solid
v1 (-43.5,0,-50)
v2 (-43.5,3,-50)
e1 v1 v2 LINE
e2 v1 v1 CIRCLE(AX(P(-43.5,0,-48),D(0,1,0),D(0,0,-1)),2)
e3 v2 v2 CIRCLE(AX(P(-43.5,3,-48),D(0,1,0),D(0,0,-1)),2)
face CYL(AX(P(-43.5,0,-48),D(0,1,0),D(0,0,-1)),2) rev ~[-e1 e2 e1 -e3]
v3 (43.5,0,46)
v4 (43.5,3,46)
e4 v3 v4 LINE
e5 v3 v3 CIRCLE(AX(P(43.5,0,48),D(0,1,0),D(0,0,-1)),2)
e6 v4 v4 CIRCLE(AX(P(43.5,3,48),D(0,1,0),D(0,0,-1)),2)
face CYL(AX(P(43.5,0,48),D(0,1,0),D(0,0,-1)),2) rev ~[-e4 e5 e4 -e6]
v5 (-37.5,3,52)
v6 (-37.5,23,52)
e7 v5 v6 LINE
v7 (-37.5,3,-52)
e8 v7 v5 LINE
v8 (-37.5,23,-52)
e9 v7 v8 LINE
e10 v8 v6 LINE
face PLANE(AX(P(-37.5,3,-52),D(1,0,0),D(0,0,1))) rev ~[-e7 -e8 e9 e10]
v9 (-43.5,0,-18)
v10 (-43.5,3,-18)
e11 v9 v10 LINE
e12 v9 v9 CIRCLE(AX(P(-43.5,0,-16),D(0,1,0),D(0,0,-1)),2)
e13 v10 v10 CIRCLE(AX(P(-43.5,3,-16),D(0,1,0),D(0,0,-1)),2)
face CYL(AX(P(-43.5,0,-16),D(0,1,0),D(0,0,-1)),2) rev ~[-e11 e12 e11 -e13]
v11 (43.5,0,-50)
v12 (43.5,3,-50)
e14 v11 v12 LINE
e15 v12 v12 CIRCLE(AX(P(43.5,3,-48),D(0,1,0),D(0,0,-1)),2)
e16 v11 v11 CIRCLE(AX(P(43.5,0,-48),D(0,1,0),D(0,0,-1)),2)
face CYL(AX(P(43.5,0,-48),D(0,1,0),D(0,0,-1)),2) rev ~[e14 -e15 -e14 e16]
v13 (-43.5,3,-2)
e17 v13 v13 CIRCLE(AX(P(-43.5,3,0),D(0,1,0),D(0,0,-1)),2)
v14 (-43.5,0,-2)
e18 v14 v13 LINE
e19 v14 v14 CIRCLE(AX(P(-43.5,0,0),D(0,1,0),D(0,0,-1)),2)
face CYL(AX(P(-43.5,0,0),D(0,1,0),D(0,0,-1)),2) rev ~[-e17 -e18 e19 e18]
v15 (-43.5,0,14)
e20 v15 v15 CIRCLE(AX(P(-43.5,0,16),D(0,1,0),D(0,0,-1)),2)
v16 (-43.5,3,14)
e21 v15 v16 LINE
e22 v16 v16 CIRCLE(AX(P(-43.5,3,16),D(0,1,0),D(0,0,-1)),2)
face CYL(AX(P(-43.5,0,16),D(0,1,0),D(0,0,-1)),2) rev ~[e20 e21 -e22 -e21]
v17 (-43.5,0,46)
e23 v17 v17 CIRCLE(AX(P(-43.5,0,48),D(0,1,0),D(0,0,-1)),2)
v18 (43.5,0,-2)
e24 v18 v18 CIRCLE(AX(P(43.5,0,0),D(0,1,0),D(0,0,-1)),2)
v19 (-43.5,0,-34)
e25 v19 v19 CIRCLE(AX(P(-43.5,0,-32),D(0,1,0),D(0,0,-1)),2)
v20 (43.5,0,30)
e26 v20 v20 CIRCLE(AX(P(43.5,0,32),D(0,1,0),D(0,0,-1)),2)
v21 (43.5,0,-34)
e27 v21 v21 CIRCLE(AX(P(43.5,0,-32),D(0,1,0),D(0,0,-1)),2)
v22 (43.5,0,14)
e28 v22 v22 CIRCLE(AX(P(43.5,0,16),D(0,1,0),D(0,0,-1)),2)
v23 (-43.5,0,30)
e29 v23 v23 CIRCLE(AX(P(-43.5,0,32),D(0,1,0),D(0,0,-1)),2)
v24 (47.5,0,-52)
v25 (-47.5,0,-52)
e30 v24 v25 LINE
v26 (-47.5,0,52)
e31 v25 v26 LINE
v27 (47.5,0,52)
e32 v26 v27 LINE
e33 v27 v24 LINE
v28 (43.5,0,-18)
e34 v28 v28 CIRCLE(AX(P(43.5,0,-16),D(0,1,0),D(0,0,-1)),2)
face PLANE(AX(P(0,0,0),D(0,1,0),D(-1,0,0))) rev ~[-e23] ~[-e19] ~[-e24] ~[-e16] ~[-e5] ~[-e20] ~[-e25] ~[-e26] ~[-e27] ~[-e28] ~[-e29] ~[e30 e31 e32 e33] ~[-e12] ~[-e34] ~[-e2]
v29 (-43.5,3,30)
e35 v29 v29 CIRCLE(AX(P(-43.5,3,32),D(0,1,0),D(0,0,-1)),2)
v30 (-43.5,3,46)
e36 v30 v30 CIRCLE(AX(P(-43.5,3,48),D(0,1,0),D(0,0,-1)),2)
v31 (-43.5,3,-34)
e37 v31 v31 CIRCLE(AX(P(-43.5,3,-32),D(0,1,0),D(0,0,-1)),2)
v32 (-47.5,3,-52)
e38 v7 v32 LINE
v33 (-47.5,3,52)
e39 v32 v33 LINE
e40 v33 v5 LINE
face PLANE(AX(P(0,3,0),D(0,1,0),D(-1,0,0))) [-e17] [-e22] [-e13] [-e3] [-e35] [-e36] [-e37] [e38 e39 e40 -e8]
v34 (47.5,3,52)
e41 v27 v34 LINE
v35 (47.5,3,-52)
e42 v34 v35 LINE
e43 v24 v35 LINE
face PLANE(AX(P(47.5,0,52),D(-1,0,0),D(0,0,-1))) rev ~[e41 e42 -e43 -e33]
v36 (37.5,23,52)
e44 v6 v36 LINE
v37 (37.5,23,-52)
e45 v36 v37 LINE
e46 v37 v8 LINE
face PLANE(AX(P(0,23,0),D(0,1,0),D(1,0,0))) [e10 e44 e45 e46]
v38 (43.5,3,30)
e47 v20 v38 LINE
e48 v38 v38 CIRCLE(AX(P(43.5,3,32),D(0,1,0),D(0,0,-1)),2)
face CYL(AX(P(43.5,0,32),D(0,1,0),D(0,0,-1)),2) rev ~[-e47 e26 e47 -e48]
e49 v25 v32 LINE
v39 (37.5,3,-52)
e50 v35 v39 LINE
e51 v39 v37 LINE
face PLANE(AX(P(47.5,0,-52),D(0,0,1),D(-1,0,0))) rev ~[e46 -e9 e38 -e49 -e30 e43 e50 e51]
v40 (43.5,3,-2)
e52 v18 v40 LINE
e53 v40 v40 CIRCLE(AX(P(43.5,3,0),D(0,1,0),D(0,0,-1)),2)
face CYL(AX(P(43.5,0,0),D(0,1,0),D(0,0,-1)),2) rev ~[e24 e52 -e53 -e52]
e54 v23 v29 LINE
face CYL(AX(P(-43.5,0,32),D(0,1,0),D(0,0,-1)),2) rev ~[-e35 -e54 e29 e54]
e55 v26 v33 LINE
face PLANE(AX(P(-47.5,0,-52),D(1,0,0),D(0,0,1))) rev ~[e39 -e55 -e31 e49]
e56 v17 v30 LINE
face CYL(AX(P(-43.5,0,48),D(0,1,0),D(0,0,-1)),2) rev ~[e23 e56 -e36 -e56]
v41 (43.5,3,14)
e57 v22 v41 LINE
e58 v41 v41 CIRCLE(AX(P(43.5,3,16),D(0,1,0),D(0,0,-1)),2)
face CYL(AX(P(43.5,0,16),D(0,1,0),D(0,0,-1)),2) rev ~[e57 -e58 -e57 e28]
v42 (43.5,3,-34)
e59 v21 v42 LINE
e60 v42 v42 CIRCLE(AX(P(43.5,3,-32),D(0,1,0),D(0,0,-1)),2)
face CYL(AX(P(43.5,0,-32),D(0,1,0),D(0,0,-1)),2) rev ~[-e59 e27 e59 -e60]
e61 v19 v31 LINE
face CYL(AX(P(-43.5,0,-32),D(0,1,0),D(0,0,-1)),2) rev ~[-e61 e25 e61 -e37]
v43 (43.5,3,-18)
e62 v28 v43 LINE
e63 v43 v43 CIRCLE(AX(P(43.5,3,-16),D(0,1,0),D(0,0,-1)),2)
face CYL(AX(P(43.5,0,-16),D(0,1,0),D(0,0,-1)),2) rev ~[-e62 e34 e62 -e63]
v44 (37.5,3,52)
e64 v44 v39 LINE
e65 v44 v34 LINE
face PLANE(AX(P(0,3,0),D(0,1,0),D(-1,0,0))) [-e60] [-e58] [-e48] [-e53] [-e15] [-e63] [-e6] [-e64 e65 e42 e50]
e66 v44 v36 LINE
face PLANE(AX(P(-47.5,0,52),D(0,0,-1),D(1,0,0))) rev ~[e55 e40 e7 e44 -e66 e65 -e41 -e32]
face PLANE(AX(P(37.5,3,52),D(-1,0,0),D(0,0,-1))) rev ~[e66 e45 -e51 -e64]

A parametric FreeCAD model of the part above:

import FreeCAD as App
import Part
import Sketcher
from FreeCAD import Vector


def add_polygon(sketch, points):
    """Adds a closed chain of lines whose ends are joined by coincident constraints."""
    first, n = sketch.GeometryCount, len(points)
    for a, b in zip(points, points[1:] + points[:1]):
        sketch.addGeometry(Part.LineSegment(App.Vector(*a, 0), App.Vector(*b, 0)), False)
    for i in range(n):
        sketch.addConstraint(Sketcher.Constraint("Coincident", first + i, 2, first + (i + 1) % n, 1))

doc = App.newDocument("Part")
body = doc.addObject("PartDesign::Body", "Body")

sketch1 = body.newObject("Sketcher::SketchObject", "Sketch")
sketch1.AttachmentSupport = (doc.getObject("XZ_Plane"), [""])
sketch1.MapMode = "FlatFace"
add_polygon(sketch1, [(48, 52), (48, -52), (-48, -52), (-48, 52)])
sketch1.addConstraint([
    Sketcher.Constraint("Vertical", 0),
    Sketcher.Constraint("Horizontal", 1),
    Sketcher.Constraint("Vertical", 2),
    Sketcher.Constraint("Horizontal", 3),
    Sketcher.Constraint("Symmetric", 0, 2, 2, 2, -1, 1),
    Sketcher.Constraint("DistanceX", 1, 2, 1, 1, 95.0),
    Sketcher.Constraint("DistanceY", 0, 2, 0, 1, 104.0),
])
pad1 = body.newObject("PartDesign::Pad", "Pad")
pad1.Profile = sketch1
pad1.Length = 3
pad1.Reversed = True

sketch2 = body.newObject("Sketcher::SketchObject", "Sketch001")
sketch2.AttachmentSupport = (doc.getObject("XZ_Plane"), [""])
sketch2.MapMode = "FlatFace"
sketch2.AttachmentOffset = App.Placement(Vector(0, 0, -3), App.Rotation())
add_polygon(sketch2, [(-38, -52), (-38, 52), (38, 52), (38, -52)])
sketch2.addConstraint([
    Sketcher.Constraint("Vertical", 0),
    Sketcher.Constraint("Horizontal", 1),
    Sketcher.Constraint("Vertical", 2),
    Sketcher.Constraint("Horizontal", 3),
    Sketcher.Constraint("Symmetric", 0, 2, 2, 2, -1, 1),
    Sketcher.Constraint("DistanceX", 1, 1, 1, 2, 75.0),
    Sketcher.Constraint("DistanceY", 0, 1, 0, 2, 104.0),
])
pad2 = body.newObject("PartDesign::Pad", "Pad001")
pad2.Profile = sketch2
pad2.Length = 20
pad2.Reversed = True

sketch3 = body.newObject("Sketcher::SketchObject", "Sketch002")
sketch3.AttachmentSupport = (doc.getObject("XZ_Plane"), [""])
sketch3.MapMode = "FlatFace"
sketch3.addGeometry([
    Part.Circle(Vector(-43.5, 48, 0), Vector(0, 0, 1), 2),
    Part.Circle(Vector(-43.5, 32, 0), Vector(0, 0, 1), 2),
    Part.Circle(Vector(-43.5, 16, 0), Vector(0, 0, 1), 2),
    Part.Circle(Vector(-43.5, 0, 0), Vector(0, 0, 1), 2),
    Part.Circle(Vector(-43.5, -16, 0), Vector(0, 0, 1), 2),
    Part.Circle(Vector(-43.5, -32, 0), Vector(0, 0, 1), 2),
    Part.Circle(Vector(-43.5, -48, 0), Vector(0, 0, 1), 2),
    Part.Circle(Vector(43.5, -48, 0), Vector(0, 0, 1), 2),
    Part.Circle(Vector(43.5, -32, 0), Vector(0, 0, 1), 2),
    Part.Circle(Vector(43.5, -16, 0), Vector(0, 0, 1), 2),
    Part.Circle(Vector(43.5, 0, 0), Vector(0, 0, 1), 2),
    Part.Circle(Vector(43.5, 16, 0), Vector(0, 0, 1), 2),
    Part.Circle(Vector(43.5, 32, 0), Vector(0, 0, 1), 2),
    Part.Circle(Vector(43.5, 48, 0), Vector(0, 0, 1), 2),
], False)
sketch3.addConstraint([
    Sketcher.Constraint("Equal", 0, 1),
    Sketcher.Constraint("Equal", 1, 2),
    Sketcher.Constraint("Equal", 2, 3),
    Sketcher.Constraint("Equal", 3, 4),
    Sketcher.Constraint("Equal", 4, 5),
    Sketcher.Constraint("Equal", 5, 6),
    Sketcher.Constraint("Equal", 6, 7),
    Sketcher.Constraint("Equal", 7, 8),
    Sketcher.Constraint("Equal", 8, 9),
    Sketcher.Constraint("Equal", 9, 10),
    Sketcher.Constraint("Equal", 10, 11),
    Sketcher.Constraint("Equal", 11, 12),
    Sketcher.Constraint("Equal", 12, 13),
    Sketcher.Constraint("Symmetric", 0, 3, 7, 3, -1, 1),
    Sketcher.Constraint("Symmetric", 1, 3, 8, 3, -1, 1),
    Sketcher.Constraint("Symmetric", 2, 3, 9, 3, -1, 1),
    Sketcher.Constraint("Symmetric", 3, 3, 10, 3, -1, 1),
    Sketcher.Constraint("Symmetric", 4, 3, 11, 3, -1, 1),
    Sketcher.Constraint("Symmetric", 5, 3, 12, 3, -1, 1),
    Sketcher.Constraint("Symmetric", 6, 3, 13, 3, -1, 1),
    Sketcher.Constraint("Symmetric", 6, 3, 7, 3, -2),
    Sketcher.Constraint("Symmetric", 5, 3, 8, 3, -2),
    Sketcher.Constraint("Symmetric", 4, 3, 9, 3, -2),
    Sketcher.Constraint("PointOnObject", 3, 3, -1),
    Sketcher.Constraint("Vertical", 0, 3, 1, 3),
    Sketcher.Constraint("Vertical", 1, 3, 2, 3),
    Sketcher.Constraint("Vertical", 2, 3, 3, 3),
    Sketcher.Constraint("Diameter", 0, 4.0),
    Sketcher.Constraint("DistanceY", -1, 1, 0, 3, 48.0),
    Sketcher.Constraint("DistanceY", -1, 1, 1, 3, 32.0),
    Sketcher.Constraint("DistanceY", -1, 1, 2, 3, 16.0),
    Sketcher.Constraint("DistanceX", 6, 3, 7, 3, 87.0),
])
doc.recompute()
hole = body.newObject("PartDesign::Hole", "Hole")
hole.Profile = sketch3
hole.ThreadType = "None"
hole.Diameter = 4
hole.DepthType = "ThroughAll"

doc.recompute()
